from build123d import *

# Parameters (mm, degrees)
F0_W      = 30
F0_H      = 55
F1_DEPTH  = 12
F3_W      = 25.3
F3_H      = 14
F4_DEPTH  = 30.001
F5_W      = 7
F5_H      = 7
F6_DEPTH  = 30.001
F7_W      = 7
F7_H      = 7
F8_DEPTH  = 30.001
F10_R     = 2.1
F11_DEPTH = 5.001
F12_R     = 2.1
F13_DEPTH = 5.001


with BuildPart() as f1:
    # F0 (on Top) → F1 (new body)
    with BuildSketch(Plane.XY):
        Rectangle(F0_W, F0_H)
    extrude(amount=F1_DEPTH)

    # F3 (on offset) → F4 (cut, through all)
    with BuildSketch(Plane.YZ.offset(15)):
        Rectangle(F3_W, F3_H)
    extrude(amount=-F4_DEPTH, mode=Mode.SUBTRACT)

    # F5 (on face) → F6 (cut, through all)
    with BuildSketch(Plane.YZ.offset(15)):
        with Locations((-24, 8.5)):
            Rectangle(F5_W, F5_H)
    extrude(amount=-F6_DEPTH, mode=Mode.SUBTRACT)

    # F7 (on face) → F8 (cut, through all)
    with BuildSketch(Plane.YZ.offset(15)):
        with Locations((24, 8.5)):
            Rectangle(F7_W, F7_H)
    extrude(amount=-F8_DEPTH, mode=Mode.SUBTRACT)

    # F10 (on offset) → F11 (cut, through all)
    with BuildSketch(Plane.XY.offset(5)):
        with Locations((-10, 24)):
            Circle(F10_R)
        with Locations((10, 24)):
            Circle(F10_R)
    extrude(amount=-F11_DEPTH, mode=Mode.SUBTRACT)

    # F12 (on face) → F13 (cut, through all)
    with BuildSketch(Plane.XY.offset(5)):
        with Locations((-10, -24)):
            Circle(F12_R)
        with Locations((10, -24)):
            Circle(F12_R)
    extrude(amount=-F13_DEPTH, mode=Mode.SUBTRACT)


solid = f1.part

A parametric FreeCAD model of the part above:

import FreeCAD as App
import Part
import Sketcher
Q = App.Units.Quantity

doc = App.newDocument("Part")
body = doc.addObject("PartDesign::Body", "Body")

sketch1 = body.newObject("Sketcher::SketchObject", "Sketch")
sketch1.AttachmentSupport = (doc.getObject("XY_Plane"), [""])
sketch1.MapMode = "FlatFace"
sketch1.addGeometry(Part.LineSegment(App.Vector(-15, 28, 0), App.Vector(-15, -28, 0)), False)
sketch1.addGeometry(Part.LineSegment(App.Vector(-15, -28, 0), App.Vector(15, -28, 0)), False)
sketch1.addGeometry(Part.LineSegment(App.Vector(15, -28, 0), App.Vector(15, 28, 0)), False)
sketch1.addGeometry(Part.LineSegment(App.Vector(15, 28, 0), App.Vector(-15, 28, 0)), False)
sketch1.addConstraint(Sketcher.Constraint("Coincident", 0, 2, 1, 1))
sketch1.addConstraint(Sketcher.Constraint("Coincident", 1, 2, 2, 1))
sketch1.addConstraint(Sketcher.Constraint("Coincident", 2, 2, 3, 1))
sketch1.addConstraint(Sketcher.Constraint("Coincident", 3, 2, 0, 1))
sketch1.addConstraint(Sketcher.Constraint("Vertical", 0))
sketch1.addConstraint(Sketcher.Constraint("Horizontal", 1))
sketch1.addConstraint(Sketcher.Constraint("Vertical", 2))
sketch1.addConstraint(Sketcher.Constraint("Horizontal", 3))
sketch1.addConstraint(Sketcher.Constraint("Symmetric", 0, 2, 2, 2, -1, 1))
sketch1.addConstraint(Sketcher.Constraint("DistanceX", 1, 1, 1, 2, Q("30 mm")))
sketch1.addConstraint(Sketcher.Constraint("DistanceY", 0, 2, 0, 1, Q("55 mm")))
pad1 = body.newObject("PartDesign::Pad", "Pad")
pad1.Profile = sketch1
pad1.Length = 12

sketch2 = body.newObject("Sketcher::SketchObject", "Sketch001")
sketch2.AttachmentSupport = (doc.getObject("YZ_Plane"), [""])
sketch2.MapMode = "FlatFace"
sketch2.AttachmentOffset = App.Placement(App.Vector(0, 0, 15), App.Rotation())
sketch2.addGeometry(Part.LineSegment(App.Vector(-13, 7, 0), App.Vector(-13, -7, 0)), False)
sketch2.addGeometry(Part.LineSegment(App.Vector(-13, -7, 0), App.Vector(13, -7, 0)), False)
sketch2.addGeometry(Part.LineSegment(App.Vector(13, -7, 0), App.Vector(13, 7, 0)), False)
sketch2.addGeometry(Part.LineSegment(App.Vector(13, 7, 0), App.Vector(-13, 7, 0)), False)
sketch2.addConstraint(Sketcher.Constraint("Coincident", 0, 2, 1, 1))
sketch2.addConstraint(Sketcher.Constraint("Coincident", 1, 2, 2, 1))
sketch2.addConstraint(Sketcher.Constraint("Coincident", 2, 2, 3, 1))
sketch2.addConstraint(Sketcher.Constraint("Coincident", 3, 2, 0, 1))
sketch2.addConstraint(Sketcher.Constraint("Vertical", 0))
sketch2.addConstraint(Sketcher.Constraint("Horizontal", 1))
sketch2.addConstraint(Sketcher.Constraint("Vertical", 2))
sketch2.addConstraint(Sketcher.Constraint("Horizontal", 3))
sketch2.addConstraint(Sketcher.Constraint("Symmetric", 0, 2, 2, 2, -1, 1))
sketch2.addConstraint(Sketcher.Constraint("DistanceY", 0, 2, 0, 1, Q("14 mm")))
sketch2.addConstraint(Sketcher.Constraint("DistanceX", 1, 1, 1, 2, Q("25.3 mm")))
pocket1 = body.newObject("PartDesign::Pocket", "Pocket")
pocket1.Profile = sketch2
pocket1.Type = "ThroughAll"

sketch3 = body.newObject("Sketcher::SketchObject", "Sketch002")
sketch3.AttachmentSupport = (doc.getObject("YZ_Plane"), [""])
sketch3.MapMode = "FlatFace"
sketch3.AttachmentOffset = App.Placement(App.Vector(0, 0, 15), App.Rotation())
sketch3.addGeometry(Part.LineSegment(App.Vector(-28, 12, 0), App.Vector(-28, 5, 0)), False)
sketch3.addGeometry(Part.LineSegment(App.Vector(-28, 5, 0), App.Vector(-20, 5, 0)), False)
sketch3.addGeometry(Part.LineSegment(App.Vector(-20, 5, 0), App.Vector(-20, 12, 0)), False)
sketch3.addGeometry(Part.LineSegment(App.Vector(-20, 12, 0), App.Vector(-28, 12, 0)), False)
sketch3.addConstraint(Sketcher.Constraint("Coincident", 0, 2, 1, 1))
sketch3.addConstraint(Sketcher.Constraint("Coincident", 1, 2, 2, 1))
sketch3.addConstraint(Sketcher.Constraint("Coincident", 2, 2, 3, 1))
sketch3.addConstraint(Sketcher.Constraint("Coincident", 3, 2, 0, 1))
sketch3.addConstraint(Sketcher.Constraint("Vertical", 0))
sketch3.addConstraint(Sketcher.Constraint("Horizontal", 1))
sketch3.addConstraint(Sketcher.Constraint("Vertical", 2))
sketch3.addConstraint(Sketcher.Constraint("Horizontal", 3))
sketch3.addConstraint(Sketcher.Constraint("Equal", 3, 0))
sketch3.addConstraint(Sketcher.Constraint("DistanceX", 1, 1, 1, 2, Q("7 mm")))
sketch3.addConstraint(Sketcher.Constraint("DistanceY", -1, 1, 0, 2, Q("5 mm")))
sketch3.addConstraint(Sketcher.Constraint("DistanceX", 0, 2, -1, 1, Q("27.5 mm")))
pocket2 = body.newObject("PartDesign::Pocket", "Pocket001")
pocket2.Profile = sketch3
pocket2.Type = "ThroughAll"

sketch4 = body.newObject("Sketcher::SketchObject", "Sketch003")
sketch4.AttachmentSupport = (doc.getObject("YZ_Plane"), [""])
sketch4.MapMode = "FlatFace"
sketch4.AttachmentOffset = App.Placement(App.Vector(0, 0, 15), App.Rotation())
sketch4.addGeometry(Part.LineSegment(App.Vector(20, 12, 0), App.Vector(20, 5, 0)), False)
sketch4.addGeometry(Part.LineSegment(App.Vector(20, 5, 0), App.Vector(28, 5, 0)), False)
sketch4.addGeometry(Part.LineSegment(App.Vector(28, 5, 0), App.Vector(28, 12, 0)), False)
sketch4.addGeometry(Part.LineSegment(App.Vector(28, 12, 0), App.Vector(20, 12, 0)), False)
sketch4.addConstraint(Sketcher.Constraint("Coincident", 0, 2, 1, 1))
sketch4.addConstraint(Sketcher.Constraint("Coincident", 1, 2, 2, 1))
sketch4.addConstraint(Sketcher.Constraint("Coincident", 2, 2, 3, 1))
sketch4.addConstraint(Sketcher.Constraint("Coincident", 3, 2, 0, 1))
sketch4.addConstraint(Sketcher.Constraint("Vertical", 0))
sketch4.addConstraint(Sketcher.Constraint("Horizontal", 1))
sketch4.addConstraint(Sketcher.Constraint("Vertical", 2))
sketch4.addConstraint(Sketcher.Constraint("Horizontal", 3))
sketch4.addConstraint(Sketcher.Constraint("Equal", 3, 0))
sketch4.addConstraint(Sketcher.Constraint("DistanceX", 1, 1, 1, 2, Q("7 mm")))
sketch4.addConstraint(Sketcher.Constraint("DistanceY", -1, 1, 0, 2, Q("5 mm")))
sketch4.addConstraint(Sketcher.Constraint("DistanceX", -1, 1, 0, 2, Q("20.5 mm")))
pocket3 = body.newObject("PartDesign::Pocket", "Pocket002")
pocket3.Profile = sketch4
pocket3.Type = "ThroughAll"

sketch5 = body.newObject("Sketcher::SketchObject", "Sketch004")
sketch5.AttachmentSupport = (doc.getObject("XY_Plane"), [""])
sketch5.MapMode = "FlatFace"
sketch5.AttachmentOffset = App.Placement(App.Vector(0, 0, 5), App.Rotation())
sketch5.addGeometry(Part.Circle(App.Vector(-10, 24, 0), App.Vector(0, 0, 1), 2.1), False)
sketch5.addGeometry(Part.Circle(App.Vector(10, 24, 0), App.Vector(0, 0, 1), 2.1), False)
sketch5.addConstraint(Sketcher.Constraint("Equal", 0, 1))
sketch5.addConstraint(Sketcher.Constraint("Symmetric", 0, 3, 1, 3, -2))
sketch5.addConstraint(Sketcher.Constraint("Diameter", 0, Q("4.2 mm")))
sketch5.addConstraint(Sketcher.Constraint("DistanceX", 0, 3, -1, 1, Q("10 mm")))
sketch5.addConstraint(Sketcher.Constraint("DistanceY", -1, 1, 0, 3, Q("24 mm")))
pocket4 = body.newObject("PartDesign::Pocket", "Pocket003")
pocket4.Profile = sketch5
pocket4.Type = "ThroughAll"

sketch6 = body.newObject("Sketcher::SketchObject", "Sketch005")
sketch6.AttachmentSupport = (doc.getObject("XY_Plane"), [""])
sketch6.MapMode = "FlatFace"
sketch6.AttachmentOffset = App.Placement(App.Vector(0, 0, 5), App.Rotation())
sketch6.addGeometry(Part.Circle(App.Vector(-10, -24, 0), App.Vector(0, 0, 1), 2.1), False)
sketch6.addGeometry(Part.Circle(App.Vector(10, -24, 0), App.Vector(0, 0, 1), 2.1), False)
sketch6.addConstraint(Sketcher.Constraint("Equal", 0, 1))
sketch6.addConstraint(Sketcher.Constraint("Symmetric", 0, 3, 1, 3, -2))
sketch6.addConstraint(Sketcher.Constraint("Diameter", 0, Q("4.2 mm")))
sketch6.addConstraint(Sketcher.Constraint("DistanceX", 0, 3, -1, 1, Q("10 mm")))
sketch6.addConstraint(Sketcher.Constraint("DistanceY", 0, 3, -1, 1, Q("24 mm")))
pocket5 = body.newObject("PartDesign::Pocket", "Pocket004")
pocket5.Profile = sketch6
pocket5.Type = "ThroughAll"

doc.recompute()
